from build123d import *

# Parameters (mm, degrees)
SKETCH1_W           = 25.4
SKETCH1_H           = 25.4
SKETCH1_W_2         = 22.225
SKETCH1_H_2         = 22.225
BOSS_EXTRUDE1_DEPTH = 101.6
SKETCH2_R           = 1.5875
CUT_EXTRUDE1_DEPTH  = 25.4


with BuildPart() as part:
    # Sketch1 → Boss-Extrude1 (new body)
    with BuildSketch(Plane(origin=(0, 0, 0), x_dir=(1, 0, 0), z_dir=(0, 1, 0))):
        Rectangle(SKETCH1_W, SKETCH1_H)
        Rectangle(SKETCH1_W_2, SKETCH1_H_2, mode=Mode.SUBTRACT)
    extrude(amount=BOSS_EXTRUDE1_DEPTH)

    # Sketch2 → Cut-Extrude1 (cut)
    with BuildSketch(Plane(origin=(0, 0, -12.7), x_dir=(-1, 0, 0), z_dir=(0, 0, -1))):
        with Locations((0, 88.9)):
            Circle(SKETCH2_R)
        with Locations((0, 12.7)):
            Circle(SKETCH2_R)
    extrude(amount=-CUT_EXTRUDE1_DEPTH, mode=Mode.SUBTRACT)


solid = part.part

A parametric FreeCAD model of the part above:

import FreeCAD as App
import Part
import Sketcher
Q = App.Units.Quantity


def add_polygon(sketch, points):
    """Adds a closed chain of lines whose ends are joined by coincident constraints."""
    first, n = sketch.GeometryCount, len(points)
    for a, b in zip(points, points[1:] + points[:1]):
        sketch.addGeometry(Part.LineSegment(App.Vector(*a, 0), App.Vector(*b, 0)), False)
    for i in range(n):
        sketch.addConstraint(Sketcher.Constraint("Coincident", first + i, 2, first + (i + 1) % n, 1))

doc = App.newDocument("Part")
body = doc.addObject("PartDesign::Body", "Body")

# Sketch on XZ plane
sketch1 = body.newObject("Sketcher::SketchObject", "Sketch")
sketch1.AttachmentSupport = (doc.getObject("XZ_Plane"), [""])
sketch1.MapMode = "FlatFace"
add_polygon(sketch1, [(-12.7, -12.7), (-12.7, 12.7), (12.7, 12.7), (12.7, -12.7)])  # lines 0-3
add_polygon(sketch1, [(11.1125, 11.1125), (-11.1125, 11.1125), (-11.1125, -11.1125), (11.1125, -11.1125)])  # lines 4-7
sketch1.addConstraint([
    Sketcher.Constraint("Vertical", 0),
    Sketcher.Constraint("Horizontal", 1),
    Sketcher.Constraint("Vertical", 2),
    Sketcher.Constraint("Horizontal", 3),
    Sketcher.Constraint("Horizontal", 4),
    Sketcher.Constraint("Vertical", 5),
    Sketcher.Constraint("Horizontal", 6),
    Sketcher.Constraint("Vertical", 7),
    Sketcher.Constraint("Symmetric", 0, 2, 2, 2, -1, 1),
    Sketcher.Constraint("Symmetric", 4, 2, 6, 2, -1, 1),
    Sketcher.Constraint("Equal", 3, 0),
    Sketcher.Constraint("Equal", 6, 5),
    Sketcher.Constraint("DistanceX", 1, 1, 1, 2, Q("1 in")),
    Sketcher.Constraint("DistanceX", 4, 2, 4, 1, Q("0.875 in")),
])
pad1 = body.newObject("PartDesign::Pad", "Pad")
pad1.Profile = sketch1
pad1.Length = Q("4 in")
pad1.Reversed = True

# Sketch on XY plane
sketch2 = body.newObject("Sketcher::SketchObject", "Sketch001")
sketch2.AttachmentSupport = (doc.getObject("XY_Plane"), [""])
sketch2.MapMode = "FlatFace"
sketch2.AttachmentOffset = App.Placement(App.Vector(0, 0, -0.5 * 25.4), App.Rotation())
sketch2.addGeometry([
    Part.Circle(App.Vector(0, 88.9, 0), App.Vector(0, 0, 1), 1.5875),
    Part.Circle(App.Vector(0, 12.7, 0), App.Vector(0, 0, 1), 1.5875),
], False)
sketch2.addConstraint([
    Sketcher.Constraint("Equal", 0, 1),
    Sketcher.Constraint("PointOnObject", 0, 3, -2),
    Sketcher.Constraint("PointOnObject", 1, 3, -2),
    Sketcher.Constraint("Diameter", 0, Q("0.125 in")),
    Sketcher.Constraint("DistanceY", 1, 3, 0, 3, Q("3 in")),
    Sketcher.Constraint("DistanceY", -1, 1, 0, 3, Q("3.5 in")),
])
pocket1 = body.newObject("PartDesign::Pocket", "Pocket")
pocket1.Profile = sketch2
pocket1.Length = Q("1 in")
pocket1.Reversed = True

doc.recompute()
